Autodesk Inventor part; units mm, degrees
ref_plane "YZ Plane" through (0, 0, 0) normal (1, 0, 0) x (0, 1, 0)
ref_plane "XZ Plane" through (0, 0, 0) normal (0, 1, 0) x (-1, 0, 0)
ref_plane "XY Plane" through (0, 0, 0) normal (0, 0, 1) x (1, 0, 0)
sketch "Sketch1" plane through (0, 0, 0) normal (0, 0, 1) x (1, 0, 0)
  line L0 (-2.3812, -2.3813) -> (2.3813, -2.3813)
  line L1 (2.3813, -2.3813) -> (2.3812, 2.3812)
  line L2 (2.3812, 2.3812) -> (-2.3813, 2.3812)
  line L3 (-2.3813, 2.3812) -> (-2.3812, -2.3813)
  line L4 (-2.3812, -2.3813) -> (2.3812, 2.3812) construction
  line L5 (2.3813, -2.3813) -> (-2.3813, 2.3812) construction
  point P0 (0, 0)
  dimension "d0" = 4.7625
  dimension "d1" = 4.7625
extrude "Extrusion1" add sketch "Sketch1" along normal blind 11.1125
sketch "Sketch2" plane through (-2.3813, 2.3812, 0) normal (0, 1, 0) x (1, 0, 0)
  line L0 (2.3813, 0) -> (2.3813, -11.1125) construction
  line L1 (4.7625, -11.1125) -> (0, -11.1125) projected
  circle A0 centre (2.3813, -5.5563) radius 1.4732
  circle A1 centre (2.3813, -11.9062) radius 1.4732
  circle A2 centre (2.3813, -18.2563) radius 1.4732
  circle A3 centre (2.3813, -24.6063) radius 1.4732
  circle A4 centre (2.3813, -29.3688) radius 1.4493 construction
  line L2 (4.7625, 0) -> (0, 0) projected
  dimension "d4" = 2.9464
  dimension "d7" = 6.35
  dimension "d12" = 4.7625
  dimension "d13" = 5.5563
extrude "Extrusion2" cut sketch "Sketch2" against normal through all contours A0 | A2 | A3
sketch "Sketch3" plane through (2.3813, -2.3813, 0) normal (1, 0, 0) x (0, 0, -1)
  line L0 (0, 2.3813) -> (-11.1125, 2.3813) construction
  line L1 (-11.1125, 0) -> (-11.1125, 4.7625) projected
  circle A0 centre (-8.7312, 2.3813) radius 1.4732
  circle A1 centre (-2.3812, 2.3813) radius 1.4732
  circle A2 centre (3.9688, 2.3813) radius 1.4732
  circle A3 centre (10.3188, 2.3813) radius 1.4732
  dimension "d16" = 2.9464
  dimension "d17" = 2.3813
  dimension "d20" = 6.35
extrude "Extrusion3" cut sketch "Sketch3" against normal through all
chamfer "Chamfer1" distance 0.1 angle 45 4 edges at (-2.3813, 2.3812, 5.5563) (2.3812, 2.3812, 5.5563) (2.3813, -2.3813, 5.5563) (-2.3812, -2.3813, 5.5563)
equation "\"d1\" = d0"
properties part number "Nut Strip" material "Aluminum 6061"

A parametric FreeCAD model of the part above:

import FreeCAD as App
import Part
import Sketcher
Q = App.Units.Quantity


def edges_at(feature, points):
    """Names of the edges that pass closest to the given points."""
    edges = feature.Shape.Edges
    near = lambda p: min(range(len(edges)), key=lambda i: edges[i].distToShape(Part.Vertex(*p))[0])
    return sorted({f"Edge{near(p) + 1}" for p in points})


def add_polygon(sketch, points):
    """Adds a closed chain of lines whose ends are joined by coincident constraints."""
    first, n = sketch.GeometryCount, len(points)
    for a, b in zip(points, points[1:] + points[:1]):
        sketch.addGeometry(Part.LineSegment(App.Vector(*a, 0), App.Vector(*b, 0)), False)
    for i in range(n):
        sketch.addConstraint(Sketcher.Constraint("Coincident", first + i, 2, first + (i + 1) % n, 1))

doc = App.newDocument("Part")
body = doc.addObject("PartDesign::Body", "Body")

# Sketch on XY plane
sketch1 = body.newObject("Sketcher::SketchObject", "Sketch")
sketch1.AttachmentSupport = (doc.getObject("XY_Plane"), [""])
sketch1.MapMode = "FlatFace"
add_polygon(sketch1, [(-2.4, 2.4), (-2.4, -2.4), (2.4, -2.4), (2.4, 2.4)])  # lines 0-3
sketch1.addConstraint(Sketcher.Constraint("Vertical", 0))
sketch1.addConstraint(Sketcher.Constraint("Horizontal", 1))
sketch1.addConstraint(Sketcher.Constraint("Vertical", 2))
sketch1.addConstraint(Sketcher.Constraint("Horizontal", 3))
sketch1.addConstraint(Sketcher.Constraint("Symmetric", 0, 2, 2, 2, -1, 1))
sketch1.addConstraint(Sketcher.Constraint("Equal", 3, 0))
sketch1.addConstraint(Sketcher.Constraint("DistanceX", 1, 1, 1, 2, Q("0.1875 in")))
pad1 = body.newObject("PartDesign::Pad", "Pad")
pad1.Profile = sketch1
pad1.Length = Q("0.4375 in")

# Sketch on XZ plane
sketch2 = body.newObject("Sketcher::SketchObject", "Sketch001")
sketch2.AttachmentSupport = (doc.getObject("XZ_Plane"), [""])
sketch2.MapMode = "FlatFace"
sketch2.AttachmentOffset = App.Placement(App.Vector(0, 0, -0.093748 * 25.4), App.Rotation())
sketch2.addGeometry(Part.Circle(App.Vector(0, 5.6, 0), App.Vector(0, 0, 1), 1.5), False)
sketch2.addGeometry(Part.Circle(App.Vector(0, 18.3, 0), App.Vector(0, 0, 1), 1.5), False)
sketch2.addGeometry(Part.Circle(App.Vector(0, 24.6, 0), App.Vector(0, 0, 1), 1.5), False)
sketch2.addConstraint(Sketcher.Constraint("Equal", 0, 1))
sketch2.addConstraint(Sketcher.Constraint("Equal", 1, 2))
sketch2.addConstraint(Sketcher.Constraint("PointOnObject", 0, 3, -2))
sketch2.addConstraint(Sketcher.Constraint("PointOnObject", 1, 3, -2))
sketch2.addConstraint(Sketcher.Constraint("PointOnObject", 2, 3, -2))
sketch2.addConstraint(Sketcher.Constraint("Diameter", 0, Q("0.116 in")))
sketch2.addConstraint(Sketcher.Constraint("DistanceY", 1, 3, 2, 3, Q("0.25 in")))
sketch2.addConstraint(Sketcher.Constraint("DistanceY", -1, 1, 0, 3, Q("0.218752 in")))
sketch2.addConstraint(Sketcher.Constraint("DistanceY", 0, 3, 1, 3, Q("0.5 in")))
pocket1 = body.newObject("PartDesign::Pocket", "Pocket")
pocket1.Profile = sketch2
pocket1.Type = "ThroughAll"
pocket1.Reversed = True

# Sketch on YZ plane
sketch3 = body.newObject("Sketcher::SketchObject", "Sketch002")
sketch3.AttachmentSupport = (doc.getObject("YZ_Plane"), [""])
sketch3.MapMode = "FlatFace"
sketch3.AttachmentOffset = App.Placement(App.Vector(0, 0, 0.093752 * 25.4), App.Rotation())
sketch3.addGeometry(Part.Circle(App.Vector(0, 8.7, 0), App.Vector(0, 0, 1), 1.5), False)
sketch3.addGeometry(Part.Circle(App.Vector(0, 2.4, 0), App.Vector(0, 0, 1), 1.5), False)
sketch3.addGeometry(Part.Circle(App.Vector(0, -4, 0), App.Vector(0, 0, 1), 1.5), False)
sketch3.addGeometry(Part.Circle(App.Vector(0, -10.3, 0), App.Vector(0, 0, 1), 1.5), False)
sketch3.addConstraint(Sketcher.Constraint("Equal", 0, 1))
sketch3.addConstraint(Sketcher.Constraint("Equal", 1, 2))
sketch3.addConstraint(Sketcher.Constraint("Equal", 2, 3))
sketch3.addConstraint(Sketcher.Constraint("PointOnObject", 0, 3, -2))
sketch3.addConstraint(Sketcher.Constraint("PointOnObject", 1, 3, -2))
sketch3.addConstraint(Sketcher.Constraint("PointOnObject", 2, 3, -2))
sketch3.addConstraint(Sketcher.Constraint("PointOnObject", 3, 3, -2))
sketch3.addConstraint(Sketcher.Constraint("Diameter", 0, Q("0.116 in")))
sketch3.addConstraint(Sketcher.Constraint("DistanceY", 1, 3, 0, 3, Q("0.25 in")))
sketch3.addConstraint(Sketcher.Constraint("DistanceY", 2, 3, 1, 3, Q("0.25 in")))
sketch3.addConstraint(Sketcher.Constraint("DistanceY", 3, 3, 2, 3, Q("0.25 in")))
sketch3.addConstraint(Sketcher.Constraint("DistanceY", -1, 1, 1, 3, Q("0.093748 in")))
pocket2 = body.newObject("PartDesign::Pocket", "Pocket001")
pocket2.Profile = sketch3
pocket2.Type = "ThroughAll"
doc.recompute()

chamfer = body.newObject("PartDesign::Chamfer", "Chamfer")
chamfer.Base = (pocket2, edges_at(pocket2, [
    (-2.381, 2.381, 5.556),
    (2.381, 2.381, 5.556),
    (2.381, -2.381, 5.556),
    (-2.381, -2.381, 5.556),
]))
chamfer.Size = 0.1

doc.recompute()
